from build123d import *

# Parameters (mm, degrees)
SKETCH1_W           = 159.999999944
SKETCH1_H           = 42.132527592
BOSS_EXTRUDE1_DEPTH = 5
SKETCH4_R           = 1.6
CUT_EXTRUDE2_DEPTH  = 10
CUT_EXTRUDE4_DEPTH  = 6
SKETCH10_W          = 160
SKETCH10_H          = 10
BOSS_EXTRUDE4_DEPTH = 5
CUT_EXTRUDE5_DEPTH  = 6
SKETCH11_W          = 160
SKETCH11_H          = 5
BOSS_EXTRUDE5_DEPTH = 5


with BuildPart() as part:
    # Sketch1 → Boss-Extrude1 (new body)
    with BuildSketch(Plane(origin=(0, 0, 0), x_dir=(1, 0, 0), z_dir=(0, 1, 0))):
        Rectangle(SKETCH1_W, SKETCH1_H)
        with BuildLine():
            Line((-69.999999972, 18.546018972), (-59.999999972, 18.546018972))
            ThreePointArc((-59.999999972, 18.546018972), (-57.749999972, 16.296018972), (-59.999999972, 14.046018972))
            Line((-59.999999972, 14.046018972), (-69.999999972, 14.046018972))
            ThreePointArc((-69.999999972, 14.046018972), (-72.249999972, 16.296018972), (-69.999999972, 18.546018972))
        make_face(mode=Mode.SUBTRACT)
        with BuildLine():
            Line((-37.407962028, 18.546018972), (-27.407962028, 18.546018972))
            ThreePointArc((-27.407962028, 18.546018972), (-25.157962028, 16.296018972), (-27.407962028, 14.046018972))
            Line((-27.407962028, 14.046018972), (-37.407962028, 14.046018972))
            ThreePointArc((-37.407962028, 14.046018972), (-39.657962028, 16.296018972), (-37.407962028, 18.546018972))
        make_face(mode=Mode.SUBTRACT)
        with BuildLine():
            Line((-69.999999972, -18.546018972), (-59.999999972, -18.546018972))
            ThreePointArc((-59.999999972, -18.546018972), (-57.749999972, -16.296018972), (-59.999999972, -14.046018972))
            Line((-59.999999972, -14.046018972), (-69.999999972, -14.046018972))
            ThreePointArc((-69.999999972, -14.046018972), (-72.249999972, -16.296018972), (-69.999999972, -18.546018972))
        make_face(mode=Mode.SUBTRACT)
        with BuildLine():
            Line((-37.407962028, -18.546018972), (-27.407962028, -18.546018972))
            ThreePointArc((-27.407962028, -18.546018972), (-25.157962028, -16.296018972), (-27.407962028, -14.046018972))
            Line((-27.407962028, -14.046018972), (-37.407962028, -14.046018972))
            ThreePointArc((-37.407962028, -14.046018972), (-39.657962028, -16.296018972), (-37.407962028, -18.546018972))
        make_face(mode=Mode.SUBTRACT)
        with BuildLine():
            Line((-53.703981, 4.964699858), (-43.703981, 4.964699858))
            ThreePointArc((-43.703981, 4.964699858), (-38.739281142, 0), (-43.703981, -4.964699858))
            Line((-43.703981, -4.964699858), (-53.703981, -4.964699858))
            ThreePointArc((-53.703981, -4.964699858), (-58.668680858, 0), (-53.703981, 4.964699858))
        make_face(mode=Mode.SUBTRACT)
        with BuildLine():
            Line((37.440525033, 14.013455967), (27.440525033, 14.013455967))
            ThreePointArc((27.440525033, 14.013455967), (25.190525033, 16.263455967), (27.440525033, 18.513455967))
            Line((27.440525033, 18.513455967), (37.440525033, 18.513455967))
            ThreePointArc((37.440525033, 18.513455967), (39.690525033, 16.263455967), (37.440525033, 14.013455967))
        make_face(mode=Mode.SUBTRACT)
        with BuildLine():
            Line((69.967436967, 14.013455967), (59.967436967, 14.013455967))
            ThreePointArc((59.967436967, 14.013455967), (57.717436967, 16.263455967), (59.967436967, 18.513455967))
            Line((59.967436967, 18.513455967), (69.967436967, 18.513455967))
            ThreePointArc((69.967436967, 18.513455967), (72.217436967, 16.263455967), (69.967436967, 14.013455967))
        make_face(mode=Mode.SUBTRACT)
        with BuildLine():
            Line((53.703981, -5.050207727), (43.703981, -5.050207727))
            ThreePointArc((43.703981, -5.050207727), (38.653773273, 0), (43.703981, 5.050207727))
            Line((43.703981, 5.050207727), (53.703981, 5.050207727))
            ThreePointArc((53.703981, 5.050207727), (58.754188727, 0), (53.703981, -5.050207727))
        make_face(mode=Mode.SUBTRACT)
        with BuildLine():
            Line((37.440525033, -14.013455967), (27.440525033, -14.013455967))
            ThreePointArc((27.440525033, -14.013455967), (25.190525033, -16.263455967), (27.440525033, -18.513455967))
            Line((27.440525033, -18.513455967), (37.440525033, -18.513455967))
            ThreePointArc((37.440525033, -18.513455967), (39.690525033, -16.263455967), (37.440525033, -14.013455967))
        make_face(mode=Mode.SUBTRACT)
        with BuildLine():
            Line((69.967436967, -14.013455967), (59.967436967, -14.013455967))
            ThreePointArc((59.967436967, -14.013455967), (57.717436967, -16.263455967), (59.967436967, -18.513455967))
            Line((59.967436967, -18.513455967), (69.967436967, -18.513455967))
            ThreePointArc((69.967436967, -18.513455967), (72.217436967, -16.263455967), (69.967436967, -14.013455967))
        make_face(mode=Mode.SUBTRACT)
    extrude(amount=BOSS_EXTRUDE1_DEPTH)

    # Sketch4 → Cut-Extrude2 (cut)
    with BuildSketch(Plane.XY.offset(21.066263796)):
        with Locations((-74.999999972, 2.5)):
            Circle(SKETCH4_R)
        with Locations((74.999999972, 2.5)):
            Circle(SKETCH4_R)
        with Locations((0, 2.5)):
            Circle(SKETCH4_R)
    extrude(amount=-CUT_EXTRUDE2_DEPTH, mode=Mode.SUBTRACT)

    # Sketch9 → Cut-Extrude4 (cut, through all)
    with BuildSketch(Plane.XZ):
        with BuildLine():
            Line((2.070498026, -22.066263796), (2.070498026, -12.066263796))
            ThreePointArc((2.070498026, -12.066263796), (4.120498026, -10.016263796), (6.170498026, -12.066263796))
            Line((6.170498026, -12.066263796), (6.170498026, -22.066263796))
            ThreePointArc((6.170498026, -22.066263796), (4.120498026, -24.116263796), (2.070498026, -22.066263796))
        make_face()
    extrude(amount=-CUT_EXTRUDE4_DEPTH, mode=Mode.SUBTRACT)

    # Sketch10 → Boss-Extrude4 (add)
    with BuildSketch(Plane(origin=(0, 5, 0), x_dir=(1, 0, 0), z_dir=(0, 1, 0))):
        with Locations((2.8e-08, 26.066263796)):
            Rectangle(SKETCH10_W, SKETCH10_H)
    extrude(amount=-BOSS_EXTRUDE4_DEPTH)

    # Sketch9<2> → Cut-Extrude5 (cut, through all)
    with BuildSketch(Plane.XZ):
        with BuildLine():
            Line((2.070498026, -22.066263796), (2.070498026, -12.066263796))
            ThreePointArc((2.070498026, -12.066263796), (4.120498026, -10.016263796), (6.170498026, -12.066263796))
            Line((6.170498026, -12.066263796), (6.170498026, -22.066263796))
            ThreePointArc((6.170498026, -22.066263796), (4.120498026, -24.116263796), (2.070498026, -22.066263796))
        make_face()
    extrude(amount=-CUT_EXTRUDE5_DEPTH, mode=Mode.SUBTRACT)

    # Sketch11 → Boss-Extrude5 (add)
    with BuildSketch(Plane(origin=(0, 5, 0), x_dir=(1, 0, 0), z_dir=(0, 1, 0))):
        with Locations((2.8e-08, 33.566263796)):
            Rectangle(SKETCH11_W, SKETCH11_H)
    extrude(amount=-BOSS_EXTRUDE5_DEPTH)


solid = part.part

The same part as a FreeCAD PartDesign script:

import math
import FreeCAD as App
import Part
import Sketcher
Q = App.Units.Quantity


def add_polygon(sketch, points):
    """Adds a closed chain of lines whose ends are joined by coincident constraints."""
    first, n = sketch.GeometryCount, len(points)
    for a, b in zip(points, points[1:] + points[:1]):
        sketch.addGeometry(Part.LineSegment(App.Vector(*a, 0), App.Vector(*b, 0)), False)
    for i in range(n):
        sketch.addConstraint(Sketcher.Constraint("Coincident", first + i, 2, first + (i + 1) % n, 1))

doc = App.newDocument("Part")
body = doc.addObject("PartDesign::Body", "Body")

# Sketch on XZ plane
sketch1 = doc.addObject("Sketcher::SketchObject", "Sketch")
body.addObject(sketch1)
sketch1.AttachmentSupport = (doc.XZ_Plane, [""])
sketch1.MapMode = "FlatFace"
add_polygon(sketch1, [(-80, -21.1), (-80, 21.1), (80, 21.1), (80, -21.1)])  # lines 0-3
sketch1.addGeometry(Part.LineSegment(App.Vector(-60, 18.5, 0), App.Vector(-70, 18.5, 0)), False)  # 4
sketch1.addGeometry(Part.ArcOfCircle(Part.Circle(App.Vector(-70, 16.3, 0), App.Vector(0, 0, 1), 2.2), math.radians(90), math.radians(270)), False)  # 5
sketch1.addGeometry(Part.LineSegment(App.Vector(-70, 14, 0), App.Vector(-60, 14, 0)), False)  # 6
sketch1.addGeometry(Part.ArcOfCircle(Part.Circle(App.Vector(-60, 16.3, 0), App.Vector(0, 0, 1), 2.2), math.radians(-90), math.radians(90)), False)  # 7
sketch1.addGeometry(Part.LineSegment(App.Vector(-27.4, 18.5, 0), App.Vector(-37.4, 18.5, 0)), False)  # 8
sketch1.addGeometry(Part.ArcOfCircle(Part.Circle(App.Vector(-37.4, 16.3, 0), App.Vector(0, 0, 1), 2.2), math.radians(90), math.radians(270)), False)  # 9
sketch1.addGeometry(Part.LineSegment(App.Vector(-37.4, 14, 0), App.Vector(-27.4, 14, 0)), False)  # 10
sketch1.addGeometry(Part.ArcOfCircle(Part.Circle(App.Vector(-27.4, 16.3, 0), App.Vector(0, 0, 1), 2.2), math.radians(-90), math.radians(90)), False)  # 11
sketch1.addGeometry(Part.LineSegment(App.Vector(27.4, 14, 0), App.Vector(37.4, 14, 0)), False)  # 12
sketch1.addGeometry(Part.ArcOfCircle(Part.Circle(App.Vector(37.4, 16.3, 0), App.Vector(0, 0, 1), 2.2), math.radians(-90), math.radians(90)), False)  # 13
sketch1.addGeometry(Part.LineSegment(App.Vector(37.4, 18.5, 0), App.Vector(27.4, 18.5, 0)), False)  # 14
sketch1.addGeometry(Part.ArcOfCircle(Part.Circle(App.Vector(27.4, 16.3, 0), App.Vector(0, 0, 1), 2.2), math.radians(90), math.radians(270)), False)  # 15
sketch1.addGeometry(Part.LineSegment(App.Vector(60, 14, 0), App.Vector(70, 14, 0)), False)  # 16
sketch1.addGeometry(Part.ArcOfCircle(Part.Circle(App.Vector(70, 16.3, 0), App.Vector(0, 0, 1), 2.2), math.radians(-90), math.radians(90)), False)  # 17
sketch1.addGeometry(Part.LineSegment(App.Vector(70, 18.5, 0), App.Vector(60, 18.5, 0)), False)  # 18
sketch1.addGeometry(Part.ArcOfCircle(Part.Circle(App.Vector(60, 16.3, 0), App.Vector(0, 0, 1), 2.2), math.radians(90), math.radians(270)), False)  # 19
sketch1.addGeometry(Part.ArcOfCircle(Part.Circle(App.Vector(-53.7, 0, 0), App.Vector(0, 0, 1), 5), math.radians(90), math.radians(270)), False)  # 20
sketch1.addGeometry(Part.LineSegment(App.Vector(-53.7, -5, 0), App.Vector(-43.7, -5, 0)), False)  # 21
sketch1.addGeometry(Part.ArcOfCircle(Part.Circle(App.Vector(-43.7, 0, 0), App.Vector(0, 0, 1), 5), math.radians(-90), math.radians(90)), False)  # 22
sketch1.addGeometry(Part.LineSegment(App.Vector(-43.7, 5, 0), App.Vector(-53.7, 5, 0)), False)  # 23
sketch1.addGeometry(Part.ArcOfCircle(Part.Circle(App.Vector(-70, -16.3, 0), App.Vector(0, 0, 1), 2.2), math.radians(90), math.radians(270)), False)  # 24
sketch1.addGeometry(Part.LineSegment(App.Vector(-70, -18.5, 0), App.Vector(-60, -18.5, 0)), False)  # 25
sketch1.addGeometry(Part.ArcOfCircle(Part.Circle(App.Vector(-60, -16.3, 0), App.Vector(0, 0, 1), 2.2), math.radians(-90), math.radians(90)), False)  # 26
sketch1.addGeometry(Part.LineSegment(App.Vector(-60, -14, 0), App.Vector(-70, -14, 0)), False)  # 27
sketch1.addGeometry(Part.ArcOfCircle(Part.Circle(App.Vector(-37.4, -16.3, 0), App.Vector(0, 0, 1), 2.2), math.radians(90), math.radians(270)), False)  # 28
sketch1.addGeometry(Part.LineSegment(App.Vector(-37.4, -18.5, 0), App.Vector(-27.4, -18.5, 0)), False)  # 29
sketch1.addGeometry(Part.ArcOfCircle(Part.Circle(App.Vector(-27.4, -16.3, 0), App.Vector(0, 0, 1), 2.2), math.radians(-90), math.radians(90)), False)  # 30
sketch1.addGeometry(Part.LineSegment(App.Vector(-27.4, -14, 0), App.Vector(-37.4, -14, 0)), False)  # 31
sketch1.addGeometry(Part.ArcOfCircle(Part.Circle(App.Vector(53.7, 0, 0), App.Vector(0, 0, 1), 5.1), math.radians(-90), math.radians(90)), False)  # 32
sketch1.addGeometry(Part.LineSegment(App.Vector(53.7, 5.1, 0), App.Vector(43.7, 5.1, 0)), False)  # 33
sketch1.addGeometry(Part.ArcOfCircle(Part.Circle(App.Vector(43.7, 0, 0), App.Vector(0, 0, 1), 5.1), math.radians(90), math.radians(270)), False)  # 34
sketch1.addGeometry(Part.LineSegment(App.Vector(43.7, -5.1, 0), App.Vector(53.7, -5.1, 0)), False)  # 35
sketch1.addGeometry(Part.ArcOfCircle(Part.Circle(App.Vector(37.4, -16.3, 0), App.Vector(0, 0, 1), 2.2), math.radians(-90), math.radians(90)), False)  # 36
sketch1.addGeometry(Part.LineSegment(App.Vector(37.4, -14, 0), App.Vector(27.4, -14, 0)), False)  # 37
sketch1.addGeometry(Part.ArcOfCircle(Part.Circle(App.Vector(27.4, -16.3, 0), App.Vector(0, 0, 1), 2.2), math.radians(90), math.radians(270)), False)  # 38
sketch1.addGeometry(Part.LineSegment(App.Vector(27.4, -18.5, 0), App.Vector(37.4, -18.5, 0)), False)  # 39
sketch1.addGeometry(Part.ArcOfCircle(Part.Circle(App.Vector(70, -16.3, 0), App.Vector(0, 0, 1), 2.2), math.radians(-90), math.radians(90)), False)  # 40
sketch1.addGeometry(Part.LineSegment(App.Vector(70, -14, 0), App.Vector(60, -14, 0)), False)  # 41
sketch1.addGeometry(Part.ArcOfCircle(Part.Circle(App.Vector(60, -16.3, 0), App.Vector(0, 0, 1), 2.2), math.radians(90), math.radians(270)), False)  # 42
sketch1.addGeometry(Part.LineSegment(App.Vector(60, -18.5, 0), App.Vector(70, -18.5, 0)), False)  # 43
sketch1.addConstraint([
    Sketcher.Constraint("Tangent", 4, 2, 5, 1),
    Sketcher.Constraint("Tangent", 5, 2, 6, 1),
    Sketcher.Constraint("Tangent", 6, 2, 7, 1),
    Sketcher.Constraint("Tangent", 7, 2, 4, 1),
    Sketcher.Constraint("Tangent", 8, 2, 9, 1),
    Sketcher.Constraint("Tangent", 9, 2, 10, 1),
    Sketcher.Constraint("Tangent", 10, 2, 11, 1),
    Sketcher.Constraint("Tangent", 11, 2, 8, 1),
    Sketcher.Constraint("Tangent", 12, 2, 13, 1),
    Sketcher.Constraint("Tangent", 13, 2, 14, 1),
    Sketcher.Constraint("Tangent", 14, 2, 15, 1),
    Sketcher.Constraint("Tangent", 15, 2, 12, 1),
    Sketcher.Constraint("Tangent", 16, 2, 17, 1),
    Sketcher.Constraint("Tangent", 17, 2, 18, 1),
    Sketcher.Constraint("Tangent", 18, 2, 19, 1),
    Sketcher.Constraint("Tangent", 19, 2, 16, 1),
    Sketcher.Constraint("Tangent", 20, 2, 21, 1),
    Sketcher.Constraint("Tangent", 21, 2, 22, 1),
    Sketcher.Constraint("Tangent", 22, 2, 23, 1),
    Sketcher.Constraint("Tangent", 23, 2, 20, 1),
    Sketcher.Constraint("Tangent", 24, 2, 25, 1),
    Sketcher.Constraint("Tangent", 25, 2, 26, 1),
    Sketcher.Constraint("Tangent", 26, 2, 27, 1),
    Sketcher.Constraint("Tangent", 27, 2, 24, 1),
    Sketcher.Constraint("Tangent", 28, 2, 29, 1),
    Sketcher.Constraint("Tangent", 29, 2, 30, 1),
    Sketcher.Constraint("Tangent", 30, 2, 31, 1),
    Sketcher.Constraint("Tangent", 31, 2, 28, 1),
    Sketcher.Constraint("Tangent", 32, 2, 33, 1),
    Sketcher.Constraint("Tangent", 33, 2, 34, 1),
    Sketcher.Constraint("Tangent", 34, 2, 35, 1),
    Sketcher.Constraint("Tangent", 35, 2, 32, 1),
    Sketcher.Constraint("Tangent", 36, 2, 37, 1),
    Sketcher.Constraint("Tangent", 37, 2, 38, 1),
    Sketcher.Constraint("Tangent", 38, 2, 39, 1),
    Sketcher.Constraint("Tangent", 39, 2, 36, 1),
    Sketcher.Constraint("Tangent", 40, 2, 41, 1),
    Sketcher.Constraint("Tangent", 41, 2, 42, 1),
    Sketcher.Constraint("Tangent", 42, 2, 43, 1),
    Sketcher.Constraint("Tangent", 43, 2, 40, 1),
    Sketcher.Constraint("Vertical", 0),
    Sketcher.Constraint("Horizontal", 1),
    Sketcher.Constraint("Vertical", 2),
    Sketcher.Constraint("Horizontal", 3),
    Sketcher.Constraint("Horizontal", 4),
    Sketcher.Constraint("Horizontal", 6),
    Sketcher.Constraint("Horizontal", 8),
    Sketcher.Constraint("Horizontal", 10),
    Sketcher.Constraint("Horizontal", 12),
    Sketcher.Constraint("Horizontal", 14),
    Sketcher.Constraint("Horizontal", 16),
    Sketcher.Constraint("Horizontal", 18),
    Sketcher.Constraint("Horizontal", 21),
    Sketcher.Constraint("Horizontal", 23),
    Sketcher.Constraint("Horizontal", 25),
    Sketcher.Constraint("Horizontal", 27),
    Sketcher.Constraint("Horizontal", 29),
    Sketcher.Constraint("Horizontal", 31),
    Sketcher.Constraint("Horizontal", 33),
    Sketcher.Constraint("Horizontal", 35),
    Sketcher.Constraint("Horizontal", 37),
    Sketcher.Constraint("Horizontal", 39),
    Sketcher.Constraint("Horizontal", 41),
    Sketcher.Constraint("Horizontal", 43),
    Sketcher.Constraint("Equal", 7, 9),
    Sketcher.Constraint("Equal", 11, 13),
    Sketcher.Constraint("Equal", 15, 17),
    Sketcher.Constraint("Equal", 19, 24),
    Sketcher.Constraint("Equal", 26, 28),
    Sketcher.Constraint("Equal", 30, 36),
    Sketcher.Constraint("Equal", 38, 40),
    Sketcher.Constraint("Symmetric", 20, 3, 32, 3, -1, 1),
    Sketcher.Constraint("Symmetric", 0, 2, 2, 2, -1, 1),
    Sketcher.Constraint("Symmetric", 22, 3, 34, 3, -2),
    Sketcher.Constraint("Symmetric", 5, 3, 24, 3, -1),
    Sketcher.Constraint("Symmetric", 9, 3, 28, 3, -1),
    Sketcher.Constraint("Symmetric", 13, 3, 36, 3, -1),
    Sketcher.Constraint("Symmetric", 17, 3, 40, 3, -1),
    Sketcher.Constraint("Horizontal", 7, 3, 9, 3),
    Sketcher.Constraint("Horizontal", 15, 3, 17, 3),
    Sketcher.Constraint("Vertical", 7, 3, 26, 3),
    Sketcher.Constraint("Vertical", 11, 3, 30, 3),
    Sketcher.Constraint("Vertical", 15, 3, 38, 3),
    Sketcher.Constraint("Vertical", 19, 3, 42, 3),
    Sketcher.Constraint("Equal", 6, 8),
    Sketcher.Constraint("Equal", 10, 12),
    Sketcher.Constraint("Equal", 14, 16),
    Sketcher.Constraint("Equal", 18, 21),
    Sketcher.Constraint("DistanceX", 1, 1, 1, 2, Q("160 mm")),
    Sketcher.Constraint("DistanceX", 4, 2, 4, 1, Q("10 mm")),
    Sketcher.Constraint("Radius", 5, Q("2.25 mm")),
    Sketcher.Constraint("DistanceX", 5, 3, -1, 1, Q("70 mm")),
    Sketcher.Constraint("Radius", 20, Q("4.9647 mm")),
    Sketcher.Constraint("Radius", 32, Q("5.050208 mm")),
    Sketcher.Constraint("DistanceY", 0, 1, 0, 2, Q("42.132528 mm")),
    Sketcher.Constraint("DistanceY", -1, 1, 5, 3, Q("16.296019 mm")),
    Sketcher.Constraint("DistanceX", 20, 3, -1, 1, Q("53.703981 mm")),
    Sketcher.Constraint("DistanceX", 9, 3, -1, 1, Q("37.407962 mm")),
    Sketcher.Constraint("DistanceX", -1, 1, 13, 3, Q("37.440525 mm")),
    Sketcher.Constraint("DistanceY", -1, 1, 13, 3, Q("16.263456 mm")),
    Sketcher.Constraint("DistanceX", -1, 1, 17, 3, Q("69.967437 mm")),
])
pad1 = doc.addObject("PartDesign::Pad", "Pad")
body.addObject(pad1)
pad1.Profile = sketch1
pad1.Length = 5
pad1.Reversed = True

# Sketch on XY plane
sketch2 = doc.addObject("Sketcher::SketchObject", "Sketch001")
body.addObject(sketch2)
sketch2.AttachmentSupport = (doc.XY_Plane, [""])
sketch2.MapMode = "FlatFace"
sketch2.AttachmentOffset = App.Placement(App.Vector(0, 0, 21.066264), App.Rotation())
sketch2.addGeometry([
    Part.Circle(App.Vector(-75, 2.5, 0), App.Vector(0, 0, 1), 1.6),
    Part.Circle(App.Vector(75, 2.5, 0), App.Vector(0, 0, 1), 1.6),
    Part.Circle(App.Vector(0, 2.5, 0), App.Vector(0, 0, 1), 1.6),
], False)
sketch2.addConstraint([
    Sketcher.Constraint("Equal", 0, 1),
    Sketcher.Constraint("Equal", 1, 2),
    Sketcher.Constraint("Symmetric", 0, 3, 1, 3, -2),
    Sketcher.Constraint("PointOnObject", 2, 3, -2),
    Sketcher.Constraint("Horizontal", 1, 3, 2, 3),
    Sketcher.Constraint("Diameter", 0, Q("3.2 mm")),
    Sketcher.Constraint("DistanceX", 0, 3, -1, 1, Q("75 mm")),
    Sketcher.Constraint("DistanceY", -1, 1, 0, 3, Q("2.5 mm")),
])
pocket1 = doc.addObject("PartDesign::Pocket", "Pocket")
body.addObject(pocket1)
pocket1.Profile = sketch2
pocket1.Length = 10

# Sketch on XZ plane
sketch3 = doc.addObject("Sketcher::SketchObject", "Sketch002")
body.addObject(sketch3)
sketch3.AttachmentSupport = (doc.XZ_Plane, [""])
sketch3.MapMode = "FlatFace"
sketch3.addGeometry([
    Part.LineSegment(App.Vector(2.1, -12.1, 0), App.Vector(2.1, -22.1, 0)),
    Part.ArcOfCircle(Part.Circle(App.Vector(4.1, -22.1, 0), App.Vector(0, 0, 1), 2), math.radians(180), math.radians(360)),
    Part.LineSegment(App.Vector(6.2, -22.1, 0), App.Vector(6.2, -12.1, 0)),
    Part.ArcOfCircle(Part.Circle(App.Vector(4.1, -12.1, 0), App.Vector(0, 0, 1), 2), math.radians(0), math.radians(180)),
], False)
sketch3.addConstraint([
    Sketcher.Constraint("Tangent", 0, 2, 1, 1),
    Sketcher.Constraint("Tangent", 1, 2, 2, 1),
    Sketcher.Constraint("Tangent", 2, 2, 3, 1),
    Sketcher.Constraint("Tangent", 3, 2, 0, 1),
    Sketcher.Constraint("Vertical", 0),
    Sketcher.Constraint("Vertical", 2),
    Sketcher.Constraint("DistanceY", 0, 2, 0, 1, Q("10 mm")),
    Sketcher.Constraint("Radius", 1, Q("2.05 mm")),
    Sketcher.Constraint("DistanceX", -1, 1, 1, 3, Q("4.120498 mm")),
    Sketcher.Constraint("DistanceY", 1, 3, -1, 1, Q("22.066264 mm")),
])
pocket2 = doc.addObject("PartDesign::Pocket", "Pocket001")
body.addObject(pocket2)
pocket2.Profile = sketch3
pocket2.Type = "ThroughAll"

# Sketch on XZ plane
sketch4 = doc.addObject("Sketcher::SketchObject", "Sketch003")
body.addObject(sketch4)
sketch4.AttachmentSupport = (doc.XZ_Plane, [""])
sketch4.MapMode = "FlatFace"
sketch4.AttachmentOffset = App.Placement(App.Vector(0, 0, -5), App.Rotation())
add_polygon(sketch4, [(-80, -31), (-80, -21), (80, -21), (80, -31)])  # lines 0-3
sketch4.addConstraint([
    Sketcher.Constraint("Vertical", 0),
    Sketcher.Constraint("Horizontal", 1),
    Sketcher.Constraint("Vertical", 2),
    Sketcher.Constraint("Horizontal", 3),
    Sketcher.Constraint("DistanceX", 1, 1, 1, 2, Q("160 mm")),
    Sketcher.Constraint("DistanceY", 0, 1, 0, 2, Q("10 mm")),
    Sketcher.Constraint("DistanceX", 0, 2, -1, 1, Q("80 mm")),
    Sketcher.Constraint("DistanceY", 0, 2, -1, 1, Q("21.066264 mm")),
])
pad2 = doc.addObject("PartDesign::Pad", "Pad001")
body.addObject(pad2)
pad2.Profile = sketch4
pad2.Length = 5

# Sketch on XZ plane
sketch5 = doc.addObject("Sketcher::SketchObject", "Sketch004")
body.addObject(sketch5)
sketch5.AttachmentSupport = (doc.XZ_Plane, [""])
sketch5.MapMode = "FlatFace"
sketch5.addGeometry([
    Part.LineSegment(App.Vector(2.1, -12.1, 0), App.Vector(2.1, -22.1, 0)),
    Part.ArcOfCircle(Part.Circle(App.Vector(4.1, -22.1, 0), App.Vector(0, 0, 1), 2), math.radians(180), math.radians(360)),
    Part.LineSegment(App.Vector(6.2, -22.1, 0), App.Vector(6.2, -12.1, 0)),
    Part.ArcOfCircle(Part.Circle(App.Vector(4.1, -12.1, 0), App.Vector(0, 0, 1), 2), math.radians(0), math.radians(180)),
], False)
sketch5.addConstraint([
    Sketcher.Constraint("Tangent", 0, 2, 1, 1),
    Sketcher.Constraint("Tangent", 1, 2, 2, 1),
    Sketcher.Constraint("Tangent", 2, 2, 3, 1),
    Sketcher.Constraint("Tangent", 3, 2, 0, 1),
    Sketcher.Constraint("Vertical", 0),
    Sketcher.Constraint("Vertical", 2),
    Sketcher.Constraint("DistanceY", 0, 2, 0, 1, Q("10 mm")),
    Sketcher.Constraint("Radius", 1, Q("2.05 mm")),
    Sketcher.Constraint("DistanceX", -1, 1, 1, 3, Q("4.120498 mm")),
    Sketcher.Constraint("DistanceY", 1, 3, -1, 1, Q("22.066264 mm")),
])
pocket3 = doc.addObject("PartDesign::Pocket", "Pocket002")
body.addObject(pocket3)
pocket3.Profile = sketch5
pocket3.Type = "ThroughAll"

# Sketch on XZ plane
sketch6 = doc.addObject("Sketcher::SketchObject", "Sketch005")
body.addObject(sketch6)
sketch6.AttachmentSupport = (doc.XZ_Plane, [""])
sketch6.MapMode = "FlatFace"
sketch6.AttachmentOffset = App.Placement(App.Vector(0, 0, -5), App.Rotation())
add_polygon(sketch6, [(-80, -36), (-80, -31), (80, -31), (80, -36)])  # lines 0-3
sketch6.addConstraint([
    Sketcher.Constraint("Vertical", 0),
    Sketcher.Constraint("Horizontal", 1),
    Sketcher.Constraint("Vertical", 2),
    Sketcher.Constraint("Horizontal", 3),
    Sketcher.Constraint("DistanceX", 1, 1, 1, 2, Q("160 mm")),
    Sketcher.Constraint("DistanceY", 0, 1, 0, 2, Q("5 mm")),
    Sketcher.Constraint("DistanceX", 0, 2, -1, 1, Q("80 mm")),
    Sketcher.Constraint("DistanceY", 0, 2, -1, 1, Q("31.066264 mm")),
])
pad3 = doc.addObject("PartDesign::Pad", "Pad002")
body.addObject(pad3)
pad3.Profile = sketch6
pad3.Length = 5

doc.recompute()
